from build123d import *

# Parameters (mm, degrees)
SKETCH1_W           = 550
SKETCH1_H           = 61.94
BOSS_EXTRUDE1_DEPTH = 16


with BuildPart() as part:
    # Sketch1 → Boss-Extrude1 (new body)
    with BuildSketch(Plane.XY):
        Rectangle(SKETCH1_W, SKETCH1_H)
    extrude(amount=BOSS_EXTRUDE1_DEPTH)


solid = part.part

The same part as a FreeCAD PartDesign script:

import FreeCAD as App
import Part
import Sketcher
from FreeCAD import Vector


def add_polygon(sketch, points):
    """Adds a closed chain of lines whose ends are joined by coincident constraints."""
    first, n = sketch.GeometryCount, len(points)
    for a, b in zip(points, points[1:] + points[:1]):
        sketch.addGeometry(Part.LineSegment(App.Vector(*a, 0), App.Vector(*b, 0)), False)
    for i in range(n):
        sketch.addConstraint(Sketcher.Constraint("Coincident", first + i, 2, first + (i + 1) % n, 1))

doc = App.newDocument("Part")
body = doc.addObject("PartDesign::Body", "Body")

# Sketch on XY plane
sketch1 = doc.addObject("Sketcher::SketchObject", "Sketch")
body.addObject(sketch1)
sketch1.AttachmentSupport = (doc.XY_Plane, [""])
sketch1.MapMode = "FlatFace"
add_polygon(sketch1, [(-275, 30.97), (-275, -30.97), (275, -30.97), (275, 30.97)])  # lines 0-3
sketch1.addConstraint([
    Sketcher.Constraint("Vertical", 0),
    Sketcher.Constraint("Horizontal", 1),
    Sketcher.Constraint("Vertical", 2),
    Sketcher.Constraint("Horizontal", 3),
    Sketcher.Constraint("Symmetric", 0, 2, 2, 2, -1, 1),
    Sketcher.Constraint("DistanceX", 1, 1, 1, 2, 550.0),
    Sketcher.Constraint("DistanceY", 0, 2, 0, 1, 61.94),
])
pad1 = doc.addObject("PartDesign::Pad", "Pad")
body.addObject(pad1)
pad1.Profile = sketch1
pad1.Length = 16

doc.recompute()
